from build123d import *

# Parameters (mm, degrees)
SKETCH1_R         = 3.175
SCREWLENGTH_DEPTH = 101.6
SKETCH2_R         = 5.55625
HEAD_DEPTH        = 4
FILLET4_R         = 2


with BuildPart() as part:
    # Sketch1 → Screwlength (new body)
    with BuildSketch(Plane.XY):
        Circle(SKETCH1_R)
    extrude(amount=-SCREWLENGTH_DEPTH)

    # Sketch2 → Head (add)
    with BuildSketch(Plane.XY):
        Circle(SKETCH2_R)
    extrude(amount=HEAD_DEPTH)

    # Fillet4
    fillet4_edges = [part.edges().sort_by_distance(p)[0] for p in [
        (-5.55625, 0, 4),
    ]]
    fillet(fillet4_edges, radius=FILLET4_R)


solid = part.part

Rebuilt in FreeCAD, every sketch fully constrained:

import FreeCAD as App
import Part
import Sketcher

V = App.Vector
Q = App.Units.Quantity


def edges_at(feature, points):
    """Names of the edges that pass closest to the given points."""
    edges = feature.Shape.Edges
    near = lambda p: min(range(len(edges)), key=lambda i: edges[i].distToShape(Part.Vertex(*p))[0])
    return sorted({f"Edge{near(p) + 1}" for p in points})

doc = App.newDocument("Part")
params = doc.addObject("Spreadsheet::Sheet", "Params")
for row, (alias, value) in enumerate([
    ("sketch1_diameter", "0.25 in"),
    ("pad1_length", "4 in"),
    ("sketch2_diameter", "0.4375 in"),
    ("pad2_length", "4 mm"),
    ("fillet_radius", "2 mm"),
], start=1):
    params.set(f"A{row}", alias)
    params.set(f"B{row}", "=" + value)
    params.setAlias(f"B{row}", alias)

body = doc.addObject("PartDesign::Body", "Body")

sketch1 = body.newObject("Sketcher::SketchObject", "Sketch")
sketch1.AttachmentSupport = (doc.getObject("XY_Plane"), [""])
sketch1.MapMode = "FlatFace"
sketch1.addGeometry(Part.Circle(V(0, 0, 0), V(0, 0, 1), 3.2), False)
sketch1.addConstraint([
    Sketcher.Constraint("Coincident", 0, 3, -1, 1),
    Sketcher.Constraint("Diameter", 0, Q("0.25 in")),
])
sketch1.setExpression("Constraints[1]", "Params.sketch1_diameter")
pad1 = body.newObject("PartDesign::Pad", "Pad")
pad1.Profile = sketch1
pad1.setExpression("Length", "Params.pad1_length")
pad1.Reversed = True

sketch2 = body.newObject("Sketcher::SketchObject", "Sketch001")
sketch2.AttachmentSupport = (doc.getObject("XY_Plane"), [""])
sketch2.MapMode = "FlatFace"
sketch2.addGeometry(Part.Circle(V(0, 0, 0), V(0, 0, 1), 6), False)
sketch2.addConstraint([
    Sketcher.Constraint("Coincident", 0, 3, -1, 1),
    Sketcher.Constraint("Diameter", 0, Q("0.4375 in")),
])
sketch2.setExpression("Constraints[1]", "Params.sketch2_diameter")
pad2 = body.newObject("PartDesign::Pad", "Pad001")
pad2.Profile = sketch2
pad2.setExpression("Length", "Params.pad2_length")
doc.recompute()

fillet = body.newObject("PartDesign::Fillet", "Fillet")
fillet.Base = (pad2, edges_at(pad2, [(-5.556, 0, 4)]))
fillet.setExpression("Radius", "Params.fillet_radius")

doc.recompute()
